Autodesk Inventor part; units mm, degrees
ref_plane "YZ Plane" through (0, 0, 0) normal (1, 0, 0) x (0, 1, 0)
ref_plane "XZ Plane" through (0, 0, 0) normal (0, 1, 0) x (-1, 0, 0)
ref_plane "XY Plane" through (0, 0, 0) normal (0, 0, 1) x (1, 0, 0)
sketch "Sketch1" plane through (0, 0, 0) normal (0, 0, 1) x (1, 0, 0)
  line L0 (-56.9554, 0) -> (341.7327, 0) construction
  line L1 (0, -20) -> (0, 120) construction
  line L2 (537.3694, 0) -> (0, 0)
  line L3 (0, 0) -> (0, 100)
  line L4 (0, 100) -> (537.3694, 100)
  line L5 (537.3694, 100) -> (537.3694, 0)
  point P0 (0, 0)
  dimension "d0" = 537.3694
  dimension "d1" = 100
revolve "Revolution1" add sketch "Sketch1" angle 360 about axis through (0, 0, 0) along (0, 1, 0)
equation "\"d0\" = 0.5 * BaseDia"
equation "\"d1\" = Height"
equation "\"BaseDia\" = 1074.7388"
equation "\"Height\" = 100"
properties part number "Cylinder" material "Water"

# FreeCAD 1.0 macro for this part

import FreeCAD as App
import Part
import Sketcher
Q = App.Units.Quantity

doc = App.newDocument("Part")
body = doc.addObject("PartDesign::Body", "Body")

# Sketch on XY plane
sketch1 = body.newObject("Sketcher::SketchObject", "Sketch")
sketch1.AttachmentSupport = (doc.getObject("XY_Plane"), [""])
sketch1.MapMode = "FlatFace"
sketch1.addGeometry([
    Part.LineSegment(App.Vector(0, 0, 0), App.Vector(537, 0, 0)),
    Part.LineSegment(App.Vector(537, 0, 0), App.Vector(537, 100, 0)),
    Part.LineSegment(App.Vector(537, 100, 0), App.Vector(0, 100, 0)),
    Part.LineSegment(App.Vector(0, 100, 0), App.Vector(0, 0, 0)),
], False)
sketch1.addConstraint([
    Sketcher.Constraint("Coincident", 0, 2, 1, 1),
    Sketcher.Constraint("Coincident", 1, 2, 2, 1),
    Sketcher.Constraint("Coincident", 2, 2, 3, 1),
    Sketcher.Constraint("Coincident", 3, 2, 0, 1),
    Sketcher.Constraint("Horizontal", 0),
    Sketcher.Constraint("Vertical", 1),
    Sketcher.Constraint("Horizontal", 2),
    Sketcher.Constraint("Vertical", 3),
    Sketcher.Constraint("Coincident", 3, 2, -1, 1),
    Sketcher.Constraint("DistanceY", 1, 1, 1, 2, Q("3.937 in")),
    Sketcher.Constraint("DistanceX", 0, 1, 0, 2, Q("537.3694 mm")),
])
revolution = body.newObject("PartDesign::Revolution", "Revolution")
revolution.Profile = sketch1
revolution.ReferenceAxis = (sketch1, ["V_Axis"])
revolution.Angle = 360

doc.recompute()
